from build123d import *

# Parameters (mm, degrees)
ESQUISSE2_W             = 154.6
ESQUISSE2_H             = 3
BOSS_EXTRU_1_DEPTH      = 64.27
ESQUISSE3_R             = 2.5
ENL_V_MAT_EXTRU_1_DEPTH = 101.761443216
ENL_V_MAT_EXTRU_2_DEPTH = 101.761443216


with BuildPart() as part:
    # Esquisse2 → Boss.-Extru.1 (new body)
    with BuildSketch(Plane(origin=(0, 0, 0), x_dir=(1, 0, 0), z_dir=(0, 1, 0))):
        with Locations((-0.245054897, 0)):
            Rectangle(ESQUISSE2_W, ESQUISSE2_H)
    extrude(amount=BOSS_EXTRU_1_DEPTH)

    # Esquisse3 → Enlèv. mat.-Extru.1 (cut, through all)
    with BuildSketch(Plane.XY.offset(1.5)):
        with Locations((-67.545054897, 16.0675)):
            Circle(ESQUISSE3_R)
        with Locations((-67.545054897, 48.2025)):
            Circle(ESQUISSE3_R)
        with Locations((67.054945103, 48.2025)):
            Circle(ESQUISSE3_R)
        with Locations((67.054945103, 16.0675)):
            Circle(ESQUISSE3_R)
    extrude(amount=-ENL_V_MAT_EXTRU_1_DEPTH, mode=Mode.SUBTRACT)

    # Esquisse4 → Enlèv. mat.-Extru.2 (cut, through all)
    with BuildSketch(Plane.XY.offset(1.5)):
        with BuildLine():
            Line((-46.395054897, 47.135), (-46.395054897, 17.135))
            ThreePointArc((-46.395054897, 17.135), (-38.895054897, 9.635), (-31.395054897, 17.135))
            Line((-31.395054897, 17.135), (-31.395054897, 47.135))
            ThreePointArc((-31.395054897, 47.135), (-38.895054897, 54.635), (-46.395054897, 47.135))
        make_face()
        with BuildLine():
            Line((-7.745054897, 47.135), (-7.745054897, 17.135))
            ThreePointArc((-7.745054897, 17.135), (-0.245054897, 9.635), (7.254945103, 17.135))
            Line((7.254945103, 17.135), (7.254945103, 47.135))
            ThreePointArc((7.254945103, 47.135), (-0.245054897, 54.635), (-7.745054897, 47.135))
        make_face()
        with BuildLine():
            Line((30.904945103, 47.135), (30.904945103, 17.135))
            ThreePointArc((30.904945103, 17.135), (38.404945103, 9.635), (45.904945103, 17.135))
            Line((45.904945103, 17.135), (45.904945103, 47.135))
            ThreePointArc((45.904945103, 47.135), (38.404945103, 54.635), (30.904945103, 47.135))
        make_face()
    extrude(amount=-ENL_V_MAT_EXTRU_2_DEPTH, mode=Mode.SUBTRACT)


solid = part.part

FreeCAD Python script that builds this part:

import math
import FreeCAD as App
import Part
import Sketcher
from FreeCAD import Vector

doc = App.newDocument("Part")
body = doc.addObject("PartDesign::Body", "Body")

sketch1 = doc.addObject("Sketcher::SketchObject", "Sketch")
body.addObject(sketch1)
sketch1.AttachmentSupport = (doc.XZ_Plane, [""])
sketch1.MapMode = "FlatFace"
sketch1.addGeometry(Part.LineSegment(Vector(-77.5, -1.5, 0), Vector(-77.5, 1.5, 0)), False)
sketch1.addGeometry(Part.LineSegment(Vector(-77.5, 1.5, 0), Vector(77.1, 1.5, 0)), False)
sketch1.addGeometry(Part.LineSegment(Vector(77.1, 1.5, 0), Vector(77.1, -1.5, 0)), False)
sketch1.addGeometry(Part.LineSegment(Vector(77.1, -1.5, 0), Vector(-77.5, -1.5, 0)), False)
sketch1.addConstraint(Sketcher.Constraint("Coincident", 0, 2, 1, 1))
sketch1.addConstraint(Sketcher.Constraint("Coincident", 1, 2, 2, 1))
sketch1.addConstraint(Sketcher.Constraint("Coincident", 2, 2, 3, 1))
sketch1.addConstraint(Sketcher.Constraint("Coincident", 3, 2, 0, 1))
sketch1.addConstraint(Sketcher.Constraint("Vertical", 0))
sketch1.addConstraint(Sketcher.Constraint("Horizontal", 1))
sketch1.addConstraint(Sketcher.Constraint("Vertical", 2))
sketch1.addConstraint(Sketcher.Constraint("Horizontal", 3))
sketch1.addConstraint(Sketcher.Constraint("DistanceY", 0, 1, 0, 2, 3.0))
sketch1.addConstraint(Sketcher.Constraint("DistanceX", 1, 1, 1, 2, 154.6))
sketch1.addConstraint(Sketcher.Constraint("DistanceY", -1, 1, 0, 2, 1.5))
sketch1.addConstraint(Sketcher.Constraint("DistanceX", 0, 2, -1, 1, 77.545055))
pad1 = doc.addObject("PartDesign::Pad", "Pad")
body.addObject(pad1)
pad1.Profile = sketch1
pad1.Length = 64.27
pad1.Reversed = True

sketch2 = doc.addObject("Sketcher::SketchObject", "Sketch001")
body.addObject(sketch2)
sketch2.AttachmentSupport = (doc.XY_Plane, [""])
sketch2.MapMode = "FlatFace"
sketch2.AttachmentOffset = App.Placement(Vector(0, 0, 1.5), App.Rotation())
sketch2.addGeometry(Part.Circle(Vector(-67.5, 16.1, 0), Vector(0, 0, 1), 2.5), False)
sketch2.addGeometry(Part.Circle(Vector(-67.5, 48.2, 0), Vector(0, 0, 1), 2.5), False)
sketch2.addGeometry(Part.Circle(Vector(67.1, 48.2, 0), Vector(0, 0, 1), 2.5), False)
sketch2.addGeometry(Part.Circle(Vector(67.1, 16.1, 0), Vector(0, 0, 1), 2.5), False)
sketch2.addConstraint(Sketcher.Constraint("Equal", 0, 1))
sketch2.addConstraint(Sketcher.Constraint("Equal", 1, 2))
sketch2.addConstraint(Sketcher.Constraint("Equal", 2, 3))
sketch2.addConstraint(Sketcher.Constraint("Horizontal", 1, 3, 2, 3))
sketch2.addConstraint(Sketcher.Constraint("Horizontal", 0, 3, 3, 3))
sketch2.addConstraint(Sketcher.Constraint("Vertical", 0, 3, 1, 3))
sketch2.addConstraint(Sketcher.Constraint("Vertical", 2, 3, 3, 3))
sketch2.addConstraint(Sketcher.Constraint("Diameter", 0, 5.0))
sketch2.addConstraint(Sketcher.Constraint("DistanceX", 1, 3, 2, 3, 134.6))
sketch2.addConstraint(Sketcher.Constraint("DistanceY", 0, 3, 1, 3, 32.135))
sketch2.addConstraint(Sketcher.Constraint("DistanceY", -1, 1, 0, 3, 16.0675))
sketch2.addConstraint(Sketcher.Constraint("DistanceX", 0, 3, -1, 1, 67.545055))
pocket1 = doc.addObject("PartDesign::Pocket", "Pocket")
body.addObject(pocket1)
pocket1.Profile = sketch2
pocket1.Type = "ThroughAll"

sketch3 = doc.addObject("Sketcher::SketchObject", "Sketch002")
body.addObject(sketch3)
sketch3.AttachmentSupport = (doc.XY_Plane, [""])
sketch3.MapMode = "FlatFace"
sketch3.AttachmentOffset = App.Placement(Vector(0, 0, 1.5), App.Rotation())
sketch3.addGeometry(Part.LineSegment(Vector(-46, 47, 0), Vector(-46, 17, 0)), False)
sketch3.addGeometry(Part.ArcOfCircle(Part.Circle(Vector(-39, 17, 0), Vector(0, 0, 1), 8), math.radians(180), math.radians(360)), False)
sketch3.addGeometry(Part.LineSegment(Vector(-31, 17, 0), Vector(-31, 47, 0)), False)
sketch3.addGeometry(Part.ArcOfCircle(Part.Circle(Vector(-39, 47, 0), Vector(0, 0, 1), 8), math.radians(0), math.radians(180)), False)
sketch3.addGeometry(Part.LineSegment(Vector(-8, 47, 0), Vector(-8, 17, 0)), False)
sketch3.addGeometry(Part.ArcOfCircle(Part.Circle(Vector(0, 17, 0), Vector(0, 0, 1), 8), math.radians(180), math.radians(360)), False)
sketch3.addGeometry(Part.LineSegment(Vector(7, 17, 0), Vector(7, 47, 0)), False)
sketch3.addGeometry(Part.ArcOfCircle(Part.Circle(Vector(0, 47, 0), Vector(0, 0, 1), 8), math.radians(0), math.radians(180)), False)
sketch3.addGeometry(Part.LineSegment(Vector(31, 47, 0), Vector(31, 17, 0)), False)
sketch3.addGeometry(Part.ArcOfCircle(Part.Circle(Vector(38, 17, 0), Vector(0, 0, 1), 8), math.radians(180), math.radians(360)), False)
sketch3.addGeometry(Part.LineSegment(Vector(46, 17, 0), Vector(46, 47, 0)), False)
sketch3.addGeometry(Part.ArcOfCircle(Part.Circle(Vector(38, 47, 0), Vector(0, 0, 1), 8), math.radians(0), math.radians(180)), False)
sketch3.addConstraint(Sketcher.Constraint("Tangent", 0, 2, 1, 1))
sketch3.addConstraint(Sketcher.Constraint("Tangent", 1, 2, 2, 1))
sketch3.addConstraint(Sketcher.Constraint("Tangent", 2, 2, 3, 1))
sketch3.addConstraint(Sketcher.Constraint("Tangent", 3, 2, 0, 1))
sketch3.addConstraint(Sketcher.Constraint("Tangent", 4, 2, 5, 1))
sketch3.addConstraint(Sketcher.Constraint("Tangent", 5, 2, 6, 1))
sketch3.addConstraint(Sketcher.Constraint("Tangent", 6, 2, 7, 1))
sketch3.addConstraint(Sketcher.Constraint("Tangent", 7, 2, 4, 1))
sketch3.addConstraint(Sketcher.Constraint("Tangent", 8, 2, 9, 1))
sketch3.addConstraint(Sketcher.Constraint("Tangent", 9, 2, 10, 1))
sketch3.addConstraint(Sketcher.Constraint("Tangent", 10, 2, 11, 1))
sketch3.addConstraint(Sketcher.Constraint("Tangent", 11, 2, 8, 1))
sketch3.addConstraint(Sketcher.Constraint("Vertical", 0))
sketch3.addConstraint(Sketcher.Constraint("Vertical", 2))
sketch3.addConstraint(Sketcher.Constraint("Vertical", 4))
sketch3.addConstraint(Sketcher.Constraint("Vertical", 6))
sketch3.addConstraint(Sketcher.Constraint("Vertical", 8))
sketch3.addConstraint(Sketcher.Constraint("Vertical", 10))
sketch3.addConstraint(Sketcher.Constraint("Equal", 3, 5))
sketch3.addConstraint(Sketcher.Constraint("Equal", 7, 9))
sketch3.addConstraint(Sketcher.Constraint("Horizontal", 1, 3, 5, 3))
sketch3.addConstraint(Sketcher.Constraint("Horizontal", 3, 3, 7, 3))
sketch3.addConstraint(Sketcher.Constraint("Horizontal", 5, 3, 9, 3))
sketch3.addConstraint(Sketcher.Constraint("Horizontal", 7, 3, 11, 3))
sketch3.addConstraint(Sketcher.Constraint("Radius", 1, 7.5))
sketch3.addConstraint(Sketcher.Constraint("DistanceY", 0, 2, 0, 1, 30.0))
sketch3.addConstraint(Sketcher.Constraint("DistanceX", 1, 3, 9, 3, 77.3))
sketch3.addConstraint(Sketcher.Constraint("DistanceX", 1, 3, 5, 3, 38.65))
sketch3.addConstraint(Sketcher.Constraint("DistanceY", -1, 1, 1, 3, 17.135))
sketch3.addConstraint(Sketcher.Constraint("DistanceX", 1, 3, -1, 1, 38.895055))
pocket2 = doc.addObject("PartDesign::Pocket", "Pocket001")
body.addObject(pocket2)
pocket2.Profile = sketch3
pocket2.Type = "ThroughAll"

doc.recompute()
